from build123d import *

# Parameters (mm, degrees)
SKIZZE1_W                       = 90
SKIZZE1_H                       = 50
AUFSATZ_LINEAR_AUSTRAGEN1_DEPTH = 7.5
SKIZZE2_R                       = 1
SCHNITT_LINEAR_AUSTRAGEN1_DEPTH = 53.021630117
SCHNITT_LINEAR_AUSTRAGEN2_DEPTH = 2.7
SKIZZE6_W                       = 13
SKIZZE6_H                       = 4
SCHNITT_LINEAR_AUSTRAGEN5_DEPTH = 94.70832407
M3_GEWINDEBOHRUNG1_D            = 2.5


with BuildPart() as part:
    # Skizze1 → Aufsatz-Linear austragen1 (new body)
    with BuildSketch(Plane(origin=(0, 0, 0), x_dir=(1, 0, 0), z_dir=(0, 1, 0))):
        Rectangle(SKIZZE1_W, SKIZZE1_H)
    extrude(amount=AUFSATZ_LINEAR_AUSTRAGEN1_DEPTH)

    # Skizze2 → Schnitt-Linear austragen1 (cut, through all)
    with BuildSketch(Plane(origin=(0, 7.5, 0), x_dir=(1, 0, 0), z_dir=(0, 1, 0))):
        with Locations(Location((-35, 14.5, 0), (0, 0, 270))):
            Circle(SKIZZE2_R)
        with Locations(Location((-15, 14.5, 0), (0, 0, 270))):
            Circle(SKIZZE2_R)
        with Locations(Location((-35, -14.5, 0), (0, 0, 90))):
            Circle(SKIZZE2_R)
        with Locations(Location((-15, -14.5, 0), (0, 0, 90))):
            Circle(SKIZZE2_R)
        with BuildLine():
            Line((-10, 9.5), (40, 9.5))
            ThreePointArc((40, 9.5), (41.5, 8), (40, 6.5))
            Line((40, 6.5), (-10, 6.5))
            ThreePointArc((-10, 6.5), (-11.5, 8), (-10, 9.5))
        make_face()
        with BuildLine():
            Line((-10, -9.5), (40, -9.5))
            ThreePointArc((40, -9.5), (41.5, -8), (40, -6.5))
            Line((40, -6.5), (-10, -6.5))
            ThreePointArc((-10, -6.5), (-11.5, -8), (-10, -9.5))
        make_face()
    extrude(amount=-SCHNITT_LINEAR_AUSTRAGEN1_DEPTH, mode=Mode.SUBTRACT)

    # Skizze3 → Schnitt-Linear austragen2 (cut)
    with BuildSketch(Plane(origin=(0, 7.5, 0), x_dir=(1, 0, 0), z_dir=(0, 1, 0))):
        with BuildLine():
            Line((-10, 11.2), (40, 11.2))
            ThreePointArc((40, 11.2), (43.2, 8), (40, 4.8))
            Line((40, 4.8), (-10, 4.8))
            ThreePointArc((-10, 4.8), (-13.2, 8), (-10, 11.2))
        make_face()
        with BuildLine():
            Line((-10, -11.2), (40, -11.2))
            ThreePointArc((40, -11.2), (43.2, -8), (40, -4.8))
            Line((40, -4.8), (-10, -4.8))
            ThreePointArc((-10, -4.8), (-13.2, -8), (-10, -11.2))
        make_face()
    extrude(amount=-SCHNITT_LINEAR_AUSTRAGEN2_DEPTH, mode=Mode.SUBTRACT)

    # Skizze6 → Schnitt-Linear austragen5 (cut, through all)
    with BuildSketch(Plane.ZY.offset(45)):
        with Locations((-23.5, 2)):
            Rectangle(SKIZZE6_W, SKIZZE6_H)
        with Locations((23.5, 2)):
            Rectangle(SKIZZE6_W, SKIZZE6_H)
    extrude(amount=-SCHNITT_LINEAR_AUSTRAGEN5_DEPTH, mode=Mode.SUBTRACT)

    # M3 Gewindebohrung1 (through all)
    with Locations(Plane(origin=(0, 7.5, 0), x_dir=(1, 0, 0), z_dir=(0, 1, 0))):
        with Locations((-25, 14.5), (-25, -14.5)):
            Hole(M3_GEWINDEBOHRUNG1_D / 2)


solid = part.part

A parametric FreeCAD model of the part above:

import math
import FreeCAD as App
import Part
import Sketcher
from FreeCAD import Vector

doc = App.newDocument("Part")
body = doc.addObject("PartDesign::Body", "Body")

# Sketch on XZ plane
sketch1 = body.newObject("Sketcher::SketchObject", "Sketch")
sketch1.AttachmentSupport = (doc.getObject("XZ_Plane"), [""])
sketch1.MapMode = "FlatFace"
sketch1.addGeometry([
    Part.LineSegment(Vector(-45, -25, 0), Vector(-45, 25, 0)),
    Part.LineSegment(Vector(-45, 25, 0), Vector(45, 25, 0)),
    Part.LineSegment(Vector(45, 25, 0), Vector(45, -25, 0)),
    Part.LineSegment(Vector(45, -25, 0), Vector(-45, -25, 0)),
], False)
sketch1.addConstraint([
    Sketcher.Constraint("Coincident", 0, 2, 1, 1),
    Sketcher.Constraint("Coincident", 1, 2, 2, 1),
    Sketcher.Constraint("Coincident", 2, 2, 3, 1),
    Sketcher.Constraint("Coincident", 3, 2, 0, 1),
    Sketcher.Constraint("Vertical", 0),
    Sketcher.Constraint("Horizontal", 1),
    Sketcher.Constraint("Vertical", 2),
    Sketcher.Constraint("Horizontal", 3),
    Sketcher.Constraint("Symmetric", 0, 2, 2, 2, -1, 1),
    Sketcher.Constraint("DistanceX", 1, 1, 1, 2, 90.0),
    Sketcher.Constraint("DistanceY", 0, 1, 0, 2, 50.0),
])
pad1 = body.newObject("PartDesign::Pad", "Pad")
pad1.Profile = sketch1
pad1.Length = 7.5
pad1.Reversed = True

# Sketch on XZ plane
sketch2 = body.newObject("Sketcher::SketchObject", "Sketch001")
sketch2.AttachmentSupport = (doc.getObject("XZ_Plane"), [""])
sketch2.MapMode = "FlatFace"
sketch2.AttachmentOffset = App.Placement(Vector(0, 0, -7.5), App.Rotation())
sketch2.addGeometry([
    Part.Circle(Vector(-35, -14.5, 0), Vector(0, 0, 1), 1),  # 0
    Part.Circle(Vector(-15, -14.5, 0), Vector(0, 0, 1), 1),  # 1
    Part.Circle(Vector(-35, 14.5, 0), Vector(0, 0, 1), 1),  # 2
    Part.Circle(Vector(-15, 14.5, 0), Vector(0, 0, 1), 1),  # 3
    Part.LineSegment(Vector(40, -9.5, 0), Vector(-10, -9.5, 0)),  # 4
    Part.ArcOfCircle(Part.Circle(Vector(-10, -8, 0), Vector(0, 0, 1), 1.5), math.radians(90), math.radians(270)),  # 5
    Part.LineSegment(Vector(-10, -6.5, 0), Vector(40, -6.5, 0)),  # 6
    Part.ArcOfCircle(Part.Circle(Vector(40, -8, 0), Vector(0, 0, 1), 1.5), math.radians(-90), math.radians(90)),  # 7
    Part.LineSegment(Vector(-10, 9.5, 0), Vector(40, 9.5, 0)),  # 8
    Part.ArcOfCircle(Part.Circle(Vector(40, 8, 0), Vector(0, 0, 1), 1.5), math.radians(-90), math.radians(90)),  # 9
    Part.LineSegment(Vector(40, 6.5, 0), Vector(-10, 6.5, 0)),  # 10
    Part.ArcOfCircle(Part.Circle(Vector(-10, 8, 0), Vector(0, 0, 1), 1.5), math.radians(90), math.radians(270)),  # 11
], False)
sketch2.addConstraint([
    Sketcher.Constraint("Tangent", 4, 2, 5, 2),
    Sketcher.Constraint("Tangent", 5, 1, 6, 1),
    Sketcher.Constraint("Tangent", 6, 2, 7, 2),
    Sketcher.Constraint("Tangent", 7, 1, 4, 1),
    Sketcher.Constraint("Tangent", 8, 2, 9, 2),
    Sketcher.Constraint("Tangent", 9, 1, 10, 1),
    Sketcher.Constraint("Tangent", 10, 2, 11, 2),
    Sketcher.Constraint("Tangent", 11, 1, 8, 1),
    Sketcher.Constraint("Horizontal", 4),
    Sketcher.Constraint("Horizontal", 6),
    Sketcher.Constraint("Horizontal", 8),
    Sketcher.Constraint("Horizontal", 10),
    Sketcher.Constraint("Equal", 0, 1),
    Sketcher.Constraint("Equal", 1, 2),
    Sketcher.Constraint("Equal", 2, 3),
    Sketcher.Constraint("Equal", 7, 9),
    Sketcher.Constraint("Symmetric", 0, 3, 2, 3, -1),
    Sketcher.Constraint("Symmetric", 1, 3, 3, 3, -1),
    Sketcher.Constraint("Symmetric", 7, 3, 9, 3, -1),
    Sketcher.Constraint("Horizontal", 0, 3, 1, 3),
    Sketcher.Constraint("Vertical", 5, 3, 11, 3),
    Sketcher.Constraint("Diameter", 0, 2.0),
    Sketcher.Constraint("Radius", 5, 1.5),
    Sketcher.Constraint("DistanceX", 4, 2, 4, 1, 50.0),
    Sketcher.Constraint("DistanceX", 0, 3, -1, 1, 35.0),
    Sketcher.Constraint("DistanceX", 1, 3, -1, 1, 15.0),
    Sketcher.Constraint("DistanceX", 5, 3, -1, 1, 10.0),
    Sketcher.Constraint("DistanceY", 5, 3, -1, 1, 8.0),
    Sketcher.Constraint("DistanceY", 0, 3, 2, 3, 29.0),
])
pocket1 = body.newObject("PartDesign::Pocket", "Pocket")
pocket1.Profile = sketch2
pocket1.Type = "ThroughAll"
pocket1.Reversed = True

# Sketch on XZ plane
sketch3 = body.newObject("Sketcher::SketchObject", "Sketch002")
sketch3.AttachmentSupport = (doc.getObject("XZ_Plane"), [""])
sketch3.MapMode = "FlatFace"
sketch3.AttachmentOffset = App.Placement(Vector(0, 0, -7.5), App.Rotation())
sketch3.addGeometry([
    Part.LineSegment(Vector(40, -11.2, 0), Vector(-10, -11.2, 0)),  # 0
    Part.ArcOfCircle(Part.Circle(Vector(-10, -8, 0), Vector(0, 0, 1), 3.2), math.radians(90), math.radians(270)),  # 1
    Part.LineSegment(Vector(-10, -4.8, 0), Vector(40, -4.8, 0)),  # 2
    Part.ArcOfCircle(Part.Circle(Vector(40, -8, 0), Vector(0, 0, 1), 3.2), math.radians(-90), math.radians(90)),  # 3
    Part.LineSegment(Vector(-10, 11.2, 0), Vector(40, 11.2, 0)),  # 4
    Part.ArcOfCircle(Part.Circle(Vector(40, 8, 0), Vector(0, 0, 1), 3.2), math.radians(-90), math.radians(90)),  # 5
    Part.LineSegment(Vector(40, 4.8, 0), Vector(-10, 4.8, 0)),  # 6
    Part.ArcOfCircle(Part.Circle(Vector(-10, 8, 0), Vector(0, 0, 1), 3.2), math.radians(90), math.radians(270)),  # 7
], False)
sketch3.addConstraint([
    Sketcher.Constraint("Tangent", 0, 2, 1, 2),
    Sketcher.Constraint("Tangent", 1, 1, 2, 1),
    Sketcher.Constraint("Tangent", 2, 2, 3, 2),
    Sketcher.Constraint("Tangent", 3, 1, 0, 1),
    Sketcher.Constraint("Tangent", 4, 2, 5, 2),
    Sketcher.Constraint("Tangent", 5, 1, 6, 1),
    Sketcher.Constraint("Tangent", 6, 2, 7, 2),
    Sketcher.Constraint("Tangent", 7, 1, 4, 1),
    Sketcher.Constraint("Horizontal", 0),
    Sketcher.Constraint("Horizontal", 2),
    Sketcher.Constraint("Horizontal", 4),
    Sketcher.Constraint("Horizontal", 6),
    Sketcher.Constraint("Equal", 3, 5),
    Sketcher.Constraint("Symmetric", 3, 3, 5, 3, -1),
    Sketcher.Constraint("Vertical", 1, 3, 7, 3),
    Sketcher.Constraint("Radius", 1, 3.2),
    Sketcher.Constraint("DistanceX", 0, 2, 0, 1, 50.0),
    Sketcher.Constraint("DistanceX", 1, 3, -1, 1, 10.0),
    Sketcher.Constraint("DistanceY", 1, 3, -1, 1, 8.0),
])
pocket2 = body.newObject("PartDesign::Pocket", "Pocket001")
pocket2.Profile = sketch3
pocket2.Length = 2.7
pocket2.Reversed = True

# Sketch on YZ plane
sketch4 = body.newObject("Sketcher::SketchObject", "Sketch003")
sketch4.AttachmentSupport = (doc.getObject("YZ_Plane"), [""])
sketch4.MapMode = "FlatFace"
sketch4.AttachmentOffset = App.Placement(Vector(0, 0, -45), App.Rotation())
sketch4.addGeometry([
    Part.LineSegment(Vector(4, -30, 0), Vector(0, -30, 0)),  # 0
    Part.LineSegment(Vector(0, -30, 0), Vector(0, -17, 0)),  # 1
    Part.LineSegment(Vector(0, -17, 0), Vector(4, -17, 0)),  # 2
    Part.LineSegment(Vector(4, -17, 0), Vector(4, -30, 0)),  # 3
    Part.LineSegment(Vector(4, 17, 0), Vector(0, 17, 0)),  # 4
    Part.LineSegment(Vector(0, 17, 0), Vector(0, 30, 0)),  # 5
    Part.LineSegment(Vector(0, 30, 0), Vector(4, 30, 0)),  # 6
    Part.LineSegment(Vector(4, 30, 0), Vector(4, 17, 0)),  # 7
], False)
sketch4.addConstraint([
    Sketcher.Constraint("Coincident", 0, 2, 1, 1),
    Sketcher.Constraint("Coincident", 1, 2, 2, 1),
    Sketcher.Constraint("Coincident", 2, 2, 3, 1),
    Sketcher.Constraint("Coincident", 3, 2, 0, 1),
    Sketcher.Constraint("Coincident", 4, 2, 5, 1),
    Sketcher.Constraint("Coincident", 5, 2, 6, 1),
    Sketcher.Constraint("Coincident", 6, 2, 7, 1),
    Sketcher.Constraint("Coincident", 7, 2, 4, 1),
    Sketcher.Constraint("Horizontal", 0),
    Sketcher.Constraint("Vertical", 1),
    Sketcher.Constraint("Horizontal", 2),
    Sketcher.Constraint("Vertical", 3),
    Sketcher.Constraint("Horizontal", 4),
    Sketcher.Constraint("Vertical", 5),
    Sketcher.Constraint("Horizontal", 6),
    Sketcher.Constraint("Vertical", 7),
    Sketcher.Constraint("Symmetric", 1, 2, 4, 2, -1, 1),
    Sketcher.Constraint("Symmetric", 0, 2, 5, 2, -1),
    Sketcher.Constraint("Vertical", 3, 2, 6, 2),
    Sketcher.Constraint("DistanceX", 0, 2, 0, 1, 4.0),
    Sketcher.Constraint("DistanceY", 1, 1, 1, 2, 13.0),
    Sketcher.Constraint("DistanceY", 0, 2, -1, 1, 30.0),
])
pocket3 = body.newObject("PartDesign::Pocket", "Pocket002")
pocket3.Profile = sketch4
pocket3.Type = "ThroughAll"
pocket3.Reversed = True

# Sketch on XZ plane
sketch5 = body.newObject("Sketcher::SketchObject", "Sketch004")
sketch5.AttachmentSupport = (doc.getObject("XZ_Plane"), [""])
sketch5.MapMode = "FlatFace"
sketch5.AttachmentOffset = App.Placement(Vector(0, 0, -7.5), App.Rotation())
sketch5.addGeometry([
    Part.Circle(Vector(-25, -14.5, 0), Vector(0, 0, 1), 1.2),
    Part.Circle(Vector(-25, 14.5, 0), Vector(0, 0, 1), 1.2),
], False)
sketch5.addConstraint([
    Sketcher.Constraint("Equal", 0, 1),
    Sketcher.Constraint("Symmetric", 0, 3, 1, 3, -1),
    Sketcher.Constraint("Diameter", 0, 2.5),
    Sketcher.Constraint("DistanceX", 0, 3, -1, 1, 25.0),
    Sketcher.Constraint("DistanceY", 0, 3, 1, 3, 29.0),
])
doc.recompute()
hole = body.newObject("PartDesign::Hole", "Hole")
hole.Profile = sketch5
hole.ThreadType = "None"
hole.Diameter = 2.5
hole.DepthType = "ThroughAll"
hole.Reversed = True

doc.recompute()
